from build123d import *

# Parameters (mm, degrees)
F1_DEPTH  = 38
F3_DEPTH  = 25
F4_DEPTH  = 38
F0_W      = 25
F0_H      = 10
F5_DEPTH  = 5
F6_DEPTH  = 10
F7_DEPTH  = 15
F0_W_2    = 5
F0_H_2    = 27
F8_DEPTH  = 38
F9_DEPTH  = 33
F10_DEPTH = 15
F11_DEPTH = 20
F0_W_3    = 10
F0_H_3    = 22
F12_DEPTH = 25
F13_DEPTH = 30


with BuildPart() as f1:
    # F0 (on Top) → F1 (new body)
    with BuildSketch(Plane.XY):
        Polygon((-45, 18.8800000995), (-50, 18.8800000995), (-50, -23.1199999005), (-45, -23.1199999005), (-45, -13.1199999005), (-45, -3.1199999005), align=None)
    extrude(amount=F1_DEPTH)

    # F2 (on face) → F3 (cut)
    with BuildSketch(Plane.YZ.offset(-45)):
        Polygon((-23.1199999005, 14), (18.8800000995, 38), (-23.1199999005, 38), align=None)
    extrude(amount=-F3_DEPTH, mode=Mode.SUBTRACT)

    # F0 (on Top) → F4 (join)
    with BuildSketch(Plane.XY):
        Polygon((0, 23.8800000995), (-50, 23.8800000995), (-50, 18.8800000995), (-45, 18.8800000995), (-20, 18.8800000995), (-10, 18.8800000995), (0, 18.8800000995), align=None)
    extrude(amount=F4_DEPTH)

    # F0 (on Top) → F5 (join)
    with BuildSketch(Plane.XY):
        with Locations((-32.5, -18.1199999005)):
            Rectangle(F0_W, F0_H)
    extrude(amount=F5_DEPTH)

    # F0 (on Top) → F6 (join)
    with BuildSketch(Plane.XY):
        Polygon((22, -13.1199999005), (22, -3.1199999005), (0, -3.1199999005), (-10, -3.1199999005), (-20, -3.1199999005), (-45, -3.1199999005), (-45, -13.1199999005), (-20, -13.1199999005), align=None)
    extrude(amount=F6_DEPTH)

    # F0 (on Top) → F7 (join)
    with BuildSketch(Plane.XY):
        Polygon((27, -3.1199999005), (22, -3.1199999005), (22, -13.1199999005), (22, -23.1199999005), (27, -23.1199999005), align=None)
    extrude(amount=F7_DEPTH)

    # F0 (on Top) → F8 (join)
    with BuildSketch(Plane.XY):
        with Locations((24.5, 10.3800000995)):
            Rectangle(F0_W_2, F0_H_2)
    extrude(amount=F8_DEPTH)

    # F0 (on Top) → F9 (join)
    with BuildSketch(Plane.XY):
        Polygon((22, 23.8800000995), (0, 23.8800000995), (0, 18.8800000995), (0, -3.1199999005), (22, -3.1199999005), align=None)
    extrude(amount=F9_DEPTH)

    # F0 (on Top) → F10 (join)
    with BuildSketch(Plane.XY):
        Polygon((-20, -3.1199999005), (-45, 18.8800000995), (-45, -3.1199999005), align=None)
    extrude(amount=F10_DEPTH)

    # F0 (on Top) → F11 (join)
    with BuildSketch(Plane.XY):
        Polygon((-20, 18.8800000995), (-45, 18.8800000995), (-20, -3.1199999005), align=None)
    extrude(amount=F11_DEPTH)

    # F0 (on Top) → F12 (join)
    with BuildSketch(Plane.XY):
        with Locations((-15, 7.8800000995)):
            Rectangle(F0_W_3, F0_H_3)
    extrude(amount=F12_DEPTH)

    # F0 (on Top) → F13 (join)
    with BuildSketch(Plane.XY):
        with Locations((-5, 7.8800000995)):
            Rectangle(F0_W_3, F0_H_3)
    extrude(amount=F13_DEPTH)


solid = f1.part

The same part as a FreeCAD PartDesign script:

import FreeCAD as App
import Part
import Sketcher

V = App.Vector


def add_polygon(sketch, points):
    """Adds a closed chain of lines whose ends are joined by coincident constraints."""
    first, n = sketch.GeometryCount, len(points)
    for a, b in zip(points, points[1:] + points[:1]):
        sketch.addGeometry(Part.LineSegment(App.Vector(*a, 0), App.Vector(*b, 0)), False)
    for i in range(n):
        sketch.addConstraint(Sketcher.Constraint("Coincident", first + i, 2, first + (i + 1) % n, 1))

doc = App.newDocument("Part")
params = doc.addObject("Spreadsheet::Sheet", "Params")
for row, (alias, value) in enumerate([
    ("sketch1_width", "5 mm"),
    ("sketch1_height", "42 mm"),
    ("pad1_length", "38 mm"),
    ("sketch2_width", "42 mm"),
    ("sketch2_height", "24 mm"),
    ("pocket1_length", "25 mm"),
    ("sketch3_width", "50 mm"),
    ("sketch3_height", "5 mm"),
    ("pad2_length", "38 mm"),
    ("sketch4_width", "25 mm"),
    ("sketch4_height", "10 mm"),
    ("pad3_length", "5 mm"),
    ("sketch5_width", "67 mm"),
    ("sketch5_height", "10 mm"),
    ("pad4_length", "10 mm"),
    ("sketch6_width", "5 mm"),
    ("sketch6_height", "20 mm"),
    ("pad5_length", "15 mm"),
    ("sketch7_width", "5 mm"),
    ("sketch7_height", "27 mm"),
    ("pad6_length", "38 mm"),
    ("sketch8_width", "22 mm"),
    ("sketch8_height", "27 mm"),
    ("pad7_length", "33 mm"),
    ("sketch9_width", "25 mm"),
    ("sketch9_height", "22 mm"),
    ("pad8_length", "15 mm"),
    ("sketch10_width", "25 mm"),
    ("sketch10_height", "22 mm"),
    ("pad9_length", "20 mm"),
    ("sketch11_width", "10 mm"),
    ("sketch11_height", "22 mm"),
    ("pad10_length", "25 mm"),
    ("sketch12_width", "10 mm"),
    ("sketch12_height", "22 mm"),
    ("pad11_length", "30 mm"),
], start=1):
    params.set(f"A{row}", alias)
    params.set(f"B{row}", "=" + value)
    params.setAlias(f"B{row}", alias)

body = doc.addObject("PartDesign::Body", "Body")

sketch1 = body.newObject("Sketcher::SketchObject", "Sketch")
sketch1.AttachmentSupport = (doc.getObject("XY_Plane"), [""])
sketch1.MapMode = "FlatFace"
add_polygon(sketch1, [(-45, 19), (-50, 19), (-50, -23), (-45, -23)])
sketch1.addConstraint([
    Sketcher.Constraint("Horizontal", 0),
    Sketcher.Constraint("Vertical", 1),
    Sketcher.Constraint("Horizontal", 2),
    Sketcher.Constraint("Vertical", 3),
    Sketcher.Constraint("DistanceX", 0, 2, 0, 1, 5.0),
    Sketcher.Constraint("DistanceY", 1, 2, 1, 1, 42.0),
    Sketcher.Constraint("DistanceX", 0, 2, -1, 1, 50.0),
    Sketcher.Constraint("DistanceY", -1, 1, 0, 2, 18.88),
])
sketch1.setExpression("Constraints[8]", "Params.sketch1_width")
sketch1.setExpression("Constraints[9]", "Params.sketch1_height")
pad1 = body.newObject("PartDesign::Pad", "Pad")
pad1.Profile = sketch1
pad1.setExpression("Length", "Params.pad1_length")

sketch2 = body.newObject("Sketcher::SketchObject", "Sketch001")
sketch2.AttachmentSupport = (doc.getObject("YZ_Plane"), [""])
sketch2.MapMode = "FlatFace"
sketch2.AttachmentOffset = App.Placement(V(0, 0, -45), App.Rotation())
add_polygon(sketch2, [(-23, 14), (19, 38), (-23, 38)])
sketch2.addConstraint([
    Sketcher.Constraint("Horizontal", 1),
    Sketcher.Constraint("Vertical", 2),
    Sketcher.Constraint("DistanceX", 1, 2, 1, 1, 42.0),
    Sketcher.Constraint("DistanceY", 2, 2, 2, 1, 24.0),
    Sketcher.Constraint("DistanceY", -1, 1, 0, 2, 38.0),
    Sketcher.Constraint("DistanceX", -1, 1, 0, 2, 18.88),
])
sketch2.setExpression("Constraints[5]", "Params.sketch2_width")
sketch2.setExpression("Constraints[6]", "Params.sketch2_height")
pocket1 = body.newObject("PartDesign::Pocket", "Pocket")
pocket1.Profile = sketch2
pocket1.setExpression("Length", "Params.pocket1_length")

sketch3 = body.newObject("Sketcher::SketchObject", "Sketch002")
sketch3.AttachmentSupport = (doc.getObject("XY_Plane"), [""])
sketch3.MapMode = "FlatFace"
add_polygon(sketch3, [(0, 24), (-50, 24), (-50, 19), (0, 19)])
sketch3.addConstraint([
    Sketcher.Constraint("Horizontal", 0),
    Sketcher.Constraint("Vertical", 1),
    Sketcher.Constraint("Horizontal", 2),
    Sketcher.Constraint("Vertical", 3),
    Sketcher.Constraint("PointOnObject", 2, 2, -2),
    Sketcher.Constraint("DistanceX", 0, 2, 0, 1, 50.0),
    Sketcher.Constraint("DistanceY", 1, 2, 1, 1, 5.0),
    Sketcher.Constraint("DistanceY", -1, 1, 0, 2, 23.88),
])
sketch3.setExpression("Constraints[9]", "Params.sketch3_width")
sketch3.setExpression("Constraints[10]", "Params.sketch3_height")
pad2 = body.newObject("PartDesign::Pad", "Pad001")
pad2.Profile = sketch3
pad2.setExpression("Length", "Params.pad2_length")

sketch4 = body.newObject("Sketcher::SketchObject", "Sketch003")
sketch4.AttachmentSupport = (doc.getObject("XY_Plane"), [""])
sketch4.MapMode = "FlatFace"
add_polygon(sketch4, [(-45, -13), (-45, -23), (-20, -23), (-20, -13)])
sketch4.addConstraint([
    Sketcher.Constraint("Vertical", 0),
    Sketcher.Constraint("Horizontal", 1),
    Sketcher.Constraint("Vertical", 2),
    Sketcher.Constraint("Horizontal", 3),
    Sketcher.Constraint("DistanceX", 1, 1, 1, 2, 25.0),
    Sketcher.Constraint("DistanceY", 0, 2, 0, 1, 10.0),
    Sketcher.Constraint("DistanceX", 0, 2, -1, 1, 45.0),
    Sketcher.Constraint("DistanceY", 0, 2, -1, 1, 23.12),
])
sketch4.setExpression("Constraints[8]", "Params.sketch4_width")
sketch4.setExpression("Constraints[9]", "Params.sketch4_height")
pad3 = body.newObject("PartDesign::Pad", "Pad002")
pad3.Profile = sketch4
pad3.setExpression("Length", "Params.pad3_length")

sketch5 = body.newObject("Sketcher::SketchObject", "Sketch004")
sketch5.AttachmentSupport = (doc.getObject("XY_Plane"), [""])
sketch5.MapMode = "FlatFace"
add_polygon(sketch5, [(22, -13), (22, -3), (-45, -3), (-45, -13)])
sketch5.addConstraint([
    Sketcher.Constraint("Vertical", 0),
    Sketcher.Constraint("Horizontal", 1),
    Sketcher.Constraint("Vertical", 2),
    Sketcher.Constraint("Horizontal", 3),
    Sketcher.Constraint("DistanceX", 1, 2, 1, 1, 67.0),
    Sketcher.Constraint("DistanceY", 0, 1, 0, 2, 10.0),
    Sketcher.Constraint("DistanceX", -1, 1, 0, 2, 22.0),
    Sketcher.Constraint("DistanceY", 0, 2, -1, 1, 3.12),
])
sketch5.setExpression("Constraints[8]", "Params.sketch5_width")
sketch5.setExpression("Constraints[9]", "Params.sketch5_height")
pad4 = body.newObject("PartDesign::Pad", "Pad003")
pad4.Profile = sketch5
pad4.setExpression("Length", "Params.pad4_length")

sketch6 = body.newObject("Sketcher::SketchObject", "Sketch005")
sketch6.AttachmentSupport = (doc.getObject("XY_Plane"), [""])
sketch6.MapMode = "FlatFace"
add_polygon(sketch6, [(27, -3), (22, -3), (22, -23), (27, -23)])
sketch6.addConstraint([
    Sketcher.Constraint("Horizontal", 0),
    Sketcher.Constraint("Vertical", 1),
    Sketcher.Constraint("Horizontal", 2),
    Sketcher.Constraint("Vertical", 3),
    Sketcher.Constraint("DistanceX", 0, 2, 0, 1, 5.0),
    Sketcher.Constraint("DistanceY", 1, 2, 1, 1, 20.0),
    Sketcher.Constraint("DistanceX", -1, 1, 0, 2, 22.0),
    Sketcher.Constraint("DistanceY", 0, 2, -1, 1, 3.12),
])
sketch6.setExpression("Constraints[8]", "Params.sketch6_width")
sketch6.setExpression("Constraints[9]", "Params.sketch6_height")
pad5 = body.newObject("PartDesign::Pad", "Pad004")
pad5.Profile = sketch6
pad5.setExpression("Length", "Params.pad5_length")

sketch7 = body.newObject("Sketcher::SketchObject", "Sketch006")
sketch7.AttachmentSupport = (doc.getObject("XY_Plane"), [""])
sketch7.MapMode = "FlatFace"
add_polygon(sketch7, [(22, 24), (22, -3), (27, -3), (27, 24)])
sketch7.addConstraint([
    Sketcher.Constraint("Vertical", 0),
    Sketcher.Constraint("Horizontal", 1),
    Sketcher.Constraint("Vertical", 2),
    Sketcher.Constraint("Horizontal", 3),
    Sketcher.Constraint("DistanceX", 1, 1, 1, 2, 5.0),
    Sketcher.Constraint("DistanceY", 0, 2, 0, 1, 27.0),
    Sketcher.Constraint("DistanceX", -1, 1, 0, 2, 22.0),
    Sketcher.Constraint("DistanceY", 0, 2, -1, 1, 3.12),
])
sketch7.setExpression("Constraints[8]", "Params.sketch7_width")
sketch7.setExpression("Constraints[9]", "Params.sketch7_height")
pad6 = body.newObject("PartDesign::Pad", "Pad005")
pad6.Profile = sketch7
pad6.setExpression("Length", "Params.pad6_length")

sketch8 = body.newObject("Sketcher::SketchObject", "Sketch007")
sketch8.AttachmentSupport = (doc.getObject("XY_Plane"), [""])
sketch8.MapMode = "FlatFace"
add_polygon(sketch8, [(22, 24), (0, 24), (0, -3), (22, -3)])
sketch8.addConstraint([
    Sketcher.Constraint("Horizontal", 0),
    Sketcher.Constraint("Vertical", 1),
    Sketcher.Constraint("Horizontal", 2),
    Sketcher.Constraint("Vertical", 3),
    Sketcher.Constraint("PointOnObject", 0, 2, -2),
    Sketcher.Constraint("DistanceX", 0, 2, 0, 1, 22.0),
    Sketcher.Constraint("DistanceY", 1, 2, 1, 1, 27.0),
    Sketcher.Constraint("DistanceY", -1, 1, 0, 2, 23.88),
])
sketch8.setExpression("Constraints[9]", "Params.sketch8_width")
sketch8.setExpression("Constraints[10]", "Params.sketch8_height")
pad7 = body.newObject("PartDesign::Pad", "Pad006")
pad7.Profile = sketch8
pad7.setExpression("Length", "Params.pad7_length")

sketch9 = body.newObject("Sketcher::SketchObject", "Sketch008")
sketch9.AttachmentSupport = (doc.getObject("XY_Plane"), [""])
sketch9.MapMode = "FlatFace"
add_polygon(sketch9, [(-20, -3), (-45, 19), (-45, -3)])
sketch9.addConstraint([
    Sketcher.Constraint("Vertical", 1),
    Sketcher.Constraint("Horizontal", 2),
    Sketcher.Constraint("DistanceX", 2, 1, 2, 2, 25.0),
    Sketcher.Constraint("DistanceY", 1, 2, 1, 1, 22.0),
    Sketcher.Constraint("DistanceX", 0, 2, -1, 1, 45.0),
    Sketcher.Constraint("DistanceY", -1, 1, 0, 2, 18.88),
])
sketch9.setExpression("Constraints[5]", "Params.sketch9_width")
sketch9.setExpression("Constraints[6]", "Params.sketch9_height")
pad8 = body.newObject("PartDesign::Pad", "Pad007")
pad8.Profile = sketch9
pad8.setExpression("Length", "Params.pad8_length")

sketch10 = body.newObject("Sketcher::SketchObject", "Sketch009")
sketch10.AttachmentSupport = (doc.getObject("XY_Plane"), [""])
sketch10.MapMode = "FlatFace"
add_polygon(sketch10, [(-20, 19), (-45, 19), (-20, -3)])
sketch10.addConstraint([
    Sketcher.Constraint("Horizontal", 0),
    Sketcher.Constraint("Vertical", 2),
    Sketcher.Constraint("DistanceX", 0, 2, 0, 1, 25.0),
    Sketcher.Constraint("DistanceY", 2, 1, 2, 2, 22.0),
    Sketcher.Constraint("DistanceX", 0, 2, -1, 1, 45.0),
    Sketcher.Constraint("DistanceY", -1, 1, 0, 2, 18.88),
])
sketch10.setExpression("Constraints[5]", "Params.sketch10_width")
sketch10.setExpression("Constraints[6]", "Params.sketch10_height")
pad9 = body.newObject("PartDesign::Pad", "Pad008")
pad9.Profile = sketch10
pad9.setExpression("Length", "Params.pad9_length")

sketch11 = body.newObject("Sketcher::SketchObject", "Sketch010")
sketch11.AttachmentSupport = (doc.getObject("XY_Plane"), [""])
sketch11.MapMode = "FlatFace"
add_polygon(sketch11, [(-20, 19), (-20, -3), (-10, -3), (-10, 19)])
sketch11.addConstraint([
    Sketcher.Constraint("Vertical", 0),
    Sketcher.Constraint("Horizontal", 1),
    Sketcher.Constraint("Vertical", 2),
    Sketcher.Constraint("Horizontal", 3),
    Sketcher.Constraint("DistanceX", 1, 1, 1, 2, 10.0),
    Sketcher.Constraint("DistanceY", 0, 2, 0, 1, 22.0),
    Sketcher.Constraint("DistanceX", 0, 2, -1, 1, 20.0),
    Sketcher.Constraint("DistanceY", 0, 2, -1, 1, 3.12),
])
sketch11.setExpression("Constraints[8]", "Params.sketch11_width")
sketch11.setExpression("Constraints[9]", "Params.sketch11_height")
pad10 = body.newObject("PartDesign::Pad", "Pad009")
pad10.Profile = sketch11
pad10.setExpression("Length", "Params.pad10_length")

sketch12 = body.newObject("Sketcher::SketchObject", "Sketch011")
sketch12.AttachmentSupport = (doc.getObject("XY_Plane"), [""])
sketch12.MapMode = "FlatFace"
add_polygon(sketch12, [(-10, 19), (-10, -3), (0, -3), (0, 19)])
sketch12.addConstraint([
    Sketcher.Constraint("Vertical", 0),
    Sketcher.Constraint("Horizontal", 1),
    Sketcher.Constraint("Vertical", 2),
    Sketcher.Constraint("Horizontal", 3),
    Sketcher.Constraint("PointOnObject", 1, 2, -2),
    Sketcher.Constraint("DistanceX", 1, 1, 1, 2, 10.0),
    Sketcher.Constraint("DistanceY", 0, 2, 0, 1, 22.0),
    Sketcher.Constraint("DistanceY", 0, 2, -1, 1, 3.12),
])
sketch12.setExpression("Constraints[9]", "Params.sketch12_width")
sketch12.setExpression("Constraints[10]", "Params.sketch12_height")
pad11 = body.newObject("PartDesign::Pad", "Pad010")
pad11.Profile = sketch12
pad11.setExpression("Length", "Params.pad11_length")

doc.recompute()
